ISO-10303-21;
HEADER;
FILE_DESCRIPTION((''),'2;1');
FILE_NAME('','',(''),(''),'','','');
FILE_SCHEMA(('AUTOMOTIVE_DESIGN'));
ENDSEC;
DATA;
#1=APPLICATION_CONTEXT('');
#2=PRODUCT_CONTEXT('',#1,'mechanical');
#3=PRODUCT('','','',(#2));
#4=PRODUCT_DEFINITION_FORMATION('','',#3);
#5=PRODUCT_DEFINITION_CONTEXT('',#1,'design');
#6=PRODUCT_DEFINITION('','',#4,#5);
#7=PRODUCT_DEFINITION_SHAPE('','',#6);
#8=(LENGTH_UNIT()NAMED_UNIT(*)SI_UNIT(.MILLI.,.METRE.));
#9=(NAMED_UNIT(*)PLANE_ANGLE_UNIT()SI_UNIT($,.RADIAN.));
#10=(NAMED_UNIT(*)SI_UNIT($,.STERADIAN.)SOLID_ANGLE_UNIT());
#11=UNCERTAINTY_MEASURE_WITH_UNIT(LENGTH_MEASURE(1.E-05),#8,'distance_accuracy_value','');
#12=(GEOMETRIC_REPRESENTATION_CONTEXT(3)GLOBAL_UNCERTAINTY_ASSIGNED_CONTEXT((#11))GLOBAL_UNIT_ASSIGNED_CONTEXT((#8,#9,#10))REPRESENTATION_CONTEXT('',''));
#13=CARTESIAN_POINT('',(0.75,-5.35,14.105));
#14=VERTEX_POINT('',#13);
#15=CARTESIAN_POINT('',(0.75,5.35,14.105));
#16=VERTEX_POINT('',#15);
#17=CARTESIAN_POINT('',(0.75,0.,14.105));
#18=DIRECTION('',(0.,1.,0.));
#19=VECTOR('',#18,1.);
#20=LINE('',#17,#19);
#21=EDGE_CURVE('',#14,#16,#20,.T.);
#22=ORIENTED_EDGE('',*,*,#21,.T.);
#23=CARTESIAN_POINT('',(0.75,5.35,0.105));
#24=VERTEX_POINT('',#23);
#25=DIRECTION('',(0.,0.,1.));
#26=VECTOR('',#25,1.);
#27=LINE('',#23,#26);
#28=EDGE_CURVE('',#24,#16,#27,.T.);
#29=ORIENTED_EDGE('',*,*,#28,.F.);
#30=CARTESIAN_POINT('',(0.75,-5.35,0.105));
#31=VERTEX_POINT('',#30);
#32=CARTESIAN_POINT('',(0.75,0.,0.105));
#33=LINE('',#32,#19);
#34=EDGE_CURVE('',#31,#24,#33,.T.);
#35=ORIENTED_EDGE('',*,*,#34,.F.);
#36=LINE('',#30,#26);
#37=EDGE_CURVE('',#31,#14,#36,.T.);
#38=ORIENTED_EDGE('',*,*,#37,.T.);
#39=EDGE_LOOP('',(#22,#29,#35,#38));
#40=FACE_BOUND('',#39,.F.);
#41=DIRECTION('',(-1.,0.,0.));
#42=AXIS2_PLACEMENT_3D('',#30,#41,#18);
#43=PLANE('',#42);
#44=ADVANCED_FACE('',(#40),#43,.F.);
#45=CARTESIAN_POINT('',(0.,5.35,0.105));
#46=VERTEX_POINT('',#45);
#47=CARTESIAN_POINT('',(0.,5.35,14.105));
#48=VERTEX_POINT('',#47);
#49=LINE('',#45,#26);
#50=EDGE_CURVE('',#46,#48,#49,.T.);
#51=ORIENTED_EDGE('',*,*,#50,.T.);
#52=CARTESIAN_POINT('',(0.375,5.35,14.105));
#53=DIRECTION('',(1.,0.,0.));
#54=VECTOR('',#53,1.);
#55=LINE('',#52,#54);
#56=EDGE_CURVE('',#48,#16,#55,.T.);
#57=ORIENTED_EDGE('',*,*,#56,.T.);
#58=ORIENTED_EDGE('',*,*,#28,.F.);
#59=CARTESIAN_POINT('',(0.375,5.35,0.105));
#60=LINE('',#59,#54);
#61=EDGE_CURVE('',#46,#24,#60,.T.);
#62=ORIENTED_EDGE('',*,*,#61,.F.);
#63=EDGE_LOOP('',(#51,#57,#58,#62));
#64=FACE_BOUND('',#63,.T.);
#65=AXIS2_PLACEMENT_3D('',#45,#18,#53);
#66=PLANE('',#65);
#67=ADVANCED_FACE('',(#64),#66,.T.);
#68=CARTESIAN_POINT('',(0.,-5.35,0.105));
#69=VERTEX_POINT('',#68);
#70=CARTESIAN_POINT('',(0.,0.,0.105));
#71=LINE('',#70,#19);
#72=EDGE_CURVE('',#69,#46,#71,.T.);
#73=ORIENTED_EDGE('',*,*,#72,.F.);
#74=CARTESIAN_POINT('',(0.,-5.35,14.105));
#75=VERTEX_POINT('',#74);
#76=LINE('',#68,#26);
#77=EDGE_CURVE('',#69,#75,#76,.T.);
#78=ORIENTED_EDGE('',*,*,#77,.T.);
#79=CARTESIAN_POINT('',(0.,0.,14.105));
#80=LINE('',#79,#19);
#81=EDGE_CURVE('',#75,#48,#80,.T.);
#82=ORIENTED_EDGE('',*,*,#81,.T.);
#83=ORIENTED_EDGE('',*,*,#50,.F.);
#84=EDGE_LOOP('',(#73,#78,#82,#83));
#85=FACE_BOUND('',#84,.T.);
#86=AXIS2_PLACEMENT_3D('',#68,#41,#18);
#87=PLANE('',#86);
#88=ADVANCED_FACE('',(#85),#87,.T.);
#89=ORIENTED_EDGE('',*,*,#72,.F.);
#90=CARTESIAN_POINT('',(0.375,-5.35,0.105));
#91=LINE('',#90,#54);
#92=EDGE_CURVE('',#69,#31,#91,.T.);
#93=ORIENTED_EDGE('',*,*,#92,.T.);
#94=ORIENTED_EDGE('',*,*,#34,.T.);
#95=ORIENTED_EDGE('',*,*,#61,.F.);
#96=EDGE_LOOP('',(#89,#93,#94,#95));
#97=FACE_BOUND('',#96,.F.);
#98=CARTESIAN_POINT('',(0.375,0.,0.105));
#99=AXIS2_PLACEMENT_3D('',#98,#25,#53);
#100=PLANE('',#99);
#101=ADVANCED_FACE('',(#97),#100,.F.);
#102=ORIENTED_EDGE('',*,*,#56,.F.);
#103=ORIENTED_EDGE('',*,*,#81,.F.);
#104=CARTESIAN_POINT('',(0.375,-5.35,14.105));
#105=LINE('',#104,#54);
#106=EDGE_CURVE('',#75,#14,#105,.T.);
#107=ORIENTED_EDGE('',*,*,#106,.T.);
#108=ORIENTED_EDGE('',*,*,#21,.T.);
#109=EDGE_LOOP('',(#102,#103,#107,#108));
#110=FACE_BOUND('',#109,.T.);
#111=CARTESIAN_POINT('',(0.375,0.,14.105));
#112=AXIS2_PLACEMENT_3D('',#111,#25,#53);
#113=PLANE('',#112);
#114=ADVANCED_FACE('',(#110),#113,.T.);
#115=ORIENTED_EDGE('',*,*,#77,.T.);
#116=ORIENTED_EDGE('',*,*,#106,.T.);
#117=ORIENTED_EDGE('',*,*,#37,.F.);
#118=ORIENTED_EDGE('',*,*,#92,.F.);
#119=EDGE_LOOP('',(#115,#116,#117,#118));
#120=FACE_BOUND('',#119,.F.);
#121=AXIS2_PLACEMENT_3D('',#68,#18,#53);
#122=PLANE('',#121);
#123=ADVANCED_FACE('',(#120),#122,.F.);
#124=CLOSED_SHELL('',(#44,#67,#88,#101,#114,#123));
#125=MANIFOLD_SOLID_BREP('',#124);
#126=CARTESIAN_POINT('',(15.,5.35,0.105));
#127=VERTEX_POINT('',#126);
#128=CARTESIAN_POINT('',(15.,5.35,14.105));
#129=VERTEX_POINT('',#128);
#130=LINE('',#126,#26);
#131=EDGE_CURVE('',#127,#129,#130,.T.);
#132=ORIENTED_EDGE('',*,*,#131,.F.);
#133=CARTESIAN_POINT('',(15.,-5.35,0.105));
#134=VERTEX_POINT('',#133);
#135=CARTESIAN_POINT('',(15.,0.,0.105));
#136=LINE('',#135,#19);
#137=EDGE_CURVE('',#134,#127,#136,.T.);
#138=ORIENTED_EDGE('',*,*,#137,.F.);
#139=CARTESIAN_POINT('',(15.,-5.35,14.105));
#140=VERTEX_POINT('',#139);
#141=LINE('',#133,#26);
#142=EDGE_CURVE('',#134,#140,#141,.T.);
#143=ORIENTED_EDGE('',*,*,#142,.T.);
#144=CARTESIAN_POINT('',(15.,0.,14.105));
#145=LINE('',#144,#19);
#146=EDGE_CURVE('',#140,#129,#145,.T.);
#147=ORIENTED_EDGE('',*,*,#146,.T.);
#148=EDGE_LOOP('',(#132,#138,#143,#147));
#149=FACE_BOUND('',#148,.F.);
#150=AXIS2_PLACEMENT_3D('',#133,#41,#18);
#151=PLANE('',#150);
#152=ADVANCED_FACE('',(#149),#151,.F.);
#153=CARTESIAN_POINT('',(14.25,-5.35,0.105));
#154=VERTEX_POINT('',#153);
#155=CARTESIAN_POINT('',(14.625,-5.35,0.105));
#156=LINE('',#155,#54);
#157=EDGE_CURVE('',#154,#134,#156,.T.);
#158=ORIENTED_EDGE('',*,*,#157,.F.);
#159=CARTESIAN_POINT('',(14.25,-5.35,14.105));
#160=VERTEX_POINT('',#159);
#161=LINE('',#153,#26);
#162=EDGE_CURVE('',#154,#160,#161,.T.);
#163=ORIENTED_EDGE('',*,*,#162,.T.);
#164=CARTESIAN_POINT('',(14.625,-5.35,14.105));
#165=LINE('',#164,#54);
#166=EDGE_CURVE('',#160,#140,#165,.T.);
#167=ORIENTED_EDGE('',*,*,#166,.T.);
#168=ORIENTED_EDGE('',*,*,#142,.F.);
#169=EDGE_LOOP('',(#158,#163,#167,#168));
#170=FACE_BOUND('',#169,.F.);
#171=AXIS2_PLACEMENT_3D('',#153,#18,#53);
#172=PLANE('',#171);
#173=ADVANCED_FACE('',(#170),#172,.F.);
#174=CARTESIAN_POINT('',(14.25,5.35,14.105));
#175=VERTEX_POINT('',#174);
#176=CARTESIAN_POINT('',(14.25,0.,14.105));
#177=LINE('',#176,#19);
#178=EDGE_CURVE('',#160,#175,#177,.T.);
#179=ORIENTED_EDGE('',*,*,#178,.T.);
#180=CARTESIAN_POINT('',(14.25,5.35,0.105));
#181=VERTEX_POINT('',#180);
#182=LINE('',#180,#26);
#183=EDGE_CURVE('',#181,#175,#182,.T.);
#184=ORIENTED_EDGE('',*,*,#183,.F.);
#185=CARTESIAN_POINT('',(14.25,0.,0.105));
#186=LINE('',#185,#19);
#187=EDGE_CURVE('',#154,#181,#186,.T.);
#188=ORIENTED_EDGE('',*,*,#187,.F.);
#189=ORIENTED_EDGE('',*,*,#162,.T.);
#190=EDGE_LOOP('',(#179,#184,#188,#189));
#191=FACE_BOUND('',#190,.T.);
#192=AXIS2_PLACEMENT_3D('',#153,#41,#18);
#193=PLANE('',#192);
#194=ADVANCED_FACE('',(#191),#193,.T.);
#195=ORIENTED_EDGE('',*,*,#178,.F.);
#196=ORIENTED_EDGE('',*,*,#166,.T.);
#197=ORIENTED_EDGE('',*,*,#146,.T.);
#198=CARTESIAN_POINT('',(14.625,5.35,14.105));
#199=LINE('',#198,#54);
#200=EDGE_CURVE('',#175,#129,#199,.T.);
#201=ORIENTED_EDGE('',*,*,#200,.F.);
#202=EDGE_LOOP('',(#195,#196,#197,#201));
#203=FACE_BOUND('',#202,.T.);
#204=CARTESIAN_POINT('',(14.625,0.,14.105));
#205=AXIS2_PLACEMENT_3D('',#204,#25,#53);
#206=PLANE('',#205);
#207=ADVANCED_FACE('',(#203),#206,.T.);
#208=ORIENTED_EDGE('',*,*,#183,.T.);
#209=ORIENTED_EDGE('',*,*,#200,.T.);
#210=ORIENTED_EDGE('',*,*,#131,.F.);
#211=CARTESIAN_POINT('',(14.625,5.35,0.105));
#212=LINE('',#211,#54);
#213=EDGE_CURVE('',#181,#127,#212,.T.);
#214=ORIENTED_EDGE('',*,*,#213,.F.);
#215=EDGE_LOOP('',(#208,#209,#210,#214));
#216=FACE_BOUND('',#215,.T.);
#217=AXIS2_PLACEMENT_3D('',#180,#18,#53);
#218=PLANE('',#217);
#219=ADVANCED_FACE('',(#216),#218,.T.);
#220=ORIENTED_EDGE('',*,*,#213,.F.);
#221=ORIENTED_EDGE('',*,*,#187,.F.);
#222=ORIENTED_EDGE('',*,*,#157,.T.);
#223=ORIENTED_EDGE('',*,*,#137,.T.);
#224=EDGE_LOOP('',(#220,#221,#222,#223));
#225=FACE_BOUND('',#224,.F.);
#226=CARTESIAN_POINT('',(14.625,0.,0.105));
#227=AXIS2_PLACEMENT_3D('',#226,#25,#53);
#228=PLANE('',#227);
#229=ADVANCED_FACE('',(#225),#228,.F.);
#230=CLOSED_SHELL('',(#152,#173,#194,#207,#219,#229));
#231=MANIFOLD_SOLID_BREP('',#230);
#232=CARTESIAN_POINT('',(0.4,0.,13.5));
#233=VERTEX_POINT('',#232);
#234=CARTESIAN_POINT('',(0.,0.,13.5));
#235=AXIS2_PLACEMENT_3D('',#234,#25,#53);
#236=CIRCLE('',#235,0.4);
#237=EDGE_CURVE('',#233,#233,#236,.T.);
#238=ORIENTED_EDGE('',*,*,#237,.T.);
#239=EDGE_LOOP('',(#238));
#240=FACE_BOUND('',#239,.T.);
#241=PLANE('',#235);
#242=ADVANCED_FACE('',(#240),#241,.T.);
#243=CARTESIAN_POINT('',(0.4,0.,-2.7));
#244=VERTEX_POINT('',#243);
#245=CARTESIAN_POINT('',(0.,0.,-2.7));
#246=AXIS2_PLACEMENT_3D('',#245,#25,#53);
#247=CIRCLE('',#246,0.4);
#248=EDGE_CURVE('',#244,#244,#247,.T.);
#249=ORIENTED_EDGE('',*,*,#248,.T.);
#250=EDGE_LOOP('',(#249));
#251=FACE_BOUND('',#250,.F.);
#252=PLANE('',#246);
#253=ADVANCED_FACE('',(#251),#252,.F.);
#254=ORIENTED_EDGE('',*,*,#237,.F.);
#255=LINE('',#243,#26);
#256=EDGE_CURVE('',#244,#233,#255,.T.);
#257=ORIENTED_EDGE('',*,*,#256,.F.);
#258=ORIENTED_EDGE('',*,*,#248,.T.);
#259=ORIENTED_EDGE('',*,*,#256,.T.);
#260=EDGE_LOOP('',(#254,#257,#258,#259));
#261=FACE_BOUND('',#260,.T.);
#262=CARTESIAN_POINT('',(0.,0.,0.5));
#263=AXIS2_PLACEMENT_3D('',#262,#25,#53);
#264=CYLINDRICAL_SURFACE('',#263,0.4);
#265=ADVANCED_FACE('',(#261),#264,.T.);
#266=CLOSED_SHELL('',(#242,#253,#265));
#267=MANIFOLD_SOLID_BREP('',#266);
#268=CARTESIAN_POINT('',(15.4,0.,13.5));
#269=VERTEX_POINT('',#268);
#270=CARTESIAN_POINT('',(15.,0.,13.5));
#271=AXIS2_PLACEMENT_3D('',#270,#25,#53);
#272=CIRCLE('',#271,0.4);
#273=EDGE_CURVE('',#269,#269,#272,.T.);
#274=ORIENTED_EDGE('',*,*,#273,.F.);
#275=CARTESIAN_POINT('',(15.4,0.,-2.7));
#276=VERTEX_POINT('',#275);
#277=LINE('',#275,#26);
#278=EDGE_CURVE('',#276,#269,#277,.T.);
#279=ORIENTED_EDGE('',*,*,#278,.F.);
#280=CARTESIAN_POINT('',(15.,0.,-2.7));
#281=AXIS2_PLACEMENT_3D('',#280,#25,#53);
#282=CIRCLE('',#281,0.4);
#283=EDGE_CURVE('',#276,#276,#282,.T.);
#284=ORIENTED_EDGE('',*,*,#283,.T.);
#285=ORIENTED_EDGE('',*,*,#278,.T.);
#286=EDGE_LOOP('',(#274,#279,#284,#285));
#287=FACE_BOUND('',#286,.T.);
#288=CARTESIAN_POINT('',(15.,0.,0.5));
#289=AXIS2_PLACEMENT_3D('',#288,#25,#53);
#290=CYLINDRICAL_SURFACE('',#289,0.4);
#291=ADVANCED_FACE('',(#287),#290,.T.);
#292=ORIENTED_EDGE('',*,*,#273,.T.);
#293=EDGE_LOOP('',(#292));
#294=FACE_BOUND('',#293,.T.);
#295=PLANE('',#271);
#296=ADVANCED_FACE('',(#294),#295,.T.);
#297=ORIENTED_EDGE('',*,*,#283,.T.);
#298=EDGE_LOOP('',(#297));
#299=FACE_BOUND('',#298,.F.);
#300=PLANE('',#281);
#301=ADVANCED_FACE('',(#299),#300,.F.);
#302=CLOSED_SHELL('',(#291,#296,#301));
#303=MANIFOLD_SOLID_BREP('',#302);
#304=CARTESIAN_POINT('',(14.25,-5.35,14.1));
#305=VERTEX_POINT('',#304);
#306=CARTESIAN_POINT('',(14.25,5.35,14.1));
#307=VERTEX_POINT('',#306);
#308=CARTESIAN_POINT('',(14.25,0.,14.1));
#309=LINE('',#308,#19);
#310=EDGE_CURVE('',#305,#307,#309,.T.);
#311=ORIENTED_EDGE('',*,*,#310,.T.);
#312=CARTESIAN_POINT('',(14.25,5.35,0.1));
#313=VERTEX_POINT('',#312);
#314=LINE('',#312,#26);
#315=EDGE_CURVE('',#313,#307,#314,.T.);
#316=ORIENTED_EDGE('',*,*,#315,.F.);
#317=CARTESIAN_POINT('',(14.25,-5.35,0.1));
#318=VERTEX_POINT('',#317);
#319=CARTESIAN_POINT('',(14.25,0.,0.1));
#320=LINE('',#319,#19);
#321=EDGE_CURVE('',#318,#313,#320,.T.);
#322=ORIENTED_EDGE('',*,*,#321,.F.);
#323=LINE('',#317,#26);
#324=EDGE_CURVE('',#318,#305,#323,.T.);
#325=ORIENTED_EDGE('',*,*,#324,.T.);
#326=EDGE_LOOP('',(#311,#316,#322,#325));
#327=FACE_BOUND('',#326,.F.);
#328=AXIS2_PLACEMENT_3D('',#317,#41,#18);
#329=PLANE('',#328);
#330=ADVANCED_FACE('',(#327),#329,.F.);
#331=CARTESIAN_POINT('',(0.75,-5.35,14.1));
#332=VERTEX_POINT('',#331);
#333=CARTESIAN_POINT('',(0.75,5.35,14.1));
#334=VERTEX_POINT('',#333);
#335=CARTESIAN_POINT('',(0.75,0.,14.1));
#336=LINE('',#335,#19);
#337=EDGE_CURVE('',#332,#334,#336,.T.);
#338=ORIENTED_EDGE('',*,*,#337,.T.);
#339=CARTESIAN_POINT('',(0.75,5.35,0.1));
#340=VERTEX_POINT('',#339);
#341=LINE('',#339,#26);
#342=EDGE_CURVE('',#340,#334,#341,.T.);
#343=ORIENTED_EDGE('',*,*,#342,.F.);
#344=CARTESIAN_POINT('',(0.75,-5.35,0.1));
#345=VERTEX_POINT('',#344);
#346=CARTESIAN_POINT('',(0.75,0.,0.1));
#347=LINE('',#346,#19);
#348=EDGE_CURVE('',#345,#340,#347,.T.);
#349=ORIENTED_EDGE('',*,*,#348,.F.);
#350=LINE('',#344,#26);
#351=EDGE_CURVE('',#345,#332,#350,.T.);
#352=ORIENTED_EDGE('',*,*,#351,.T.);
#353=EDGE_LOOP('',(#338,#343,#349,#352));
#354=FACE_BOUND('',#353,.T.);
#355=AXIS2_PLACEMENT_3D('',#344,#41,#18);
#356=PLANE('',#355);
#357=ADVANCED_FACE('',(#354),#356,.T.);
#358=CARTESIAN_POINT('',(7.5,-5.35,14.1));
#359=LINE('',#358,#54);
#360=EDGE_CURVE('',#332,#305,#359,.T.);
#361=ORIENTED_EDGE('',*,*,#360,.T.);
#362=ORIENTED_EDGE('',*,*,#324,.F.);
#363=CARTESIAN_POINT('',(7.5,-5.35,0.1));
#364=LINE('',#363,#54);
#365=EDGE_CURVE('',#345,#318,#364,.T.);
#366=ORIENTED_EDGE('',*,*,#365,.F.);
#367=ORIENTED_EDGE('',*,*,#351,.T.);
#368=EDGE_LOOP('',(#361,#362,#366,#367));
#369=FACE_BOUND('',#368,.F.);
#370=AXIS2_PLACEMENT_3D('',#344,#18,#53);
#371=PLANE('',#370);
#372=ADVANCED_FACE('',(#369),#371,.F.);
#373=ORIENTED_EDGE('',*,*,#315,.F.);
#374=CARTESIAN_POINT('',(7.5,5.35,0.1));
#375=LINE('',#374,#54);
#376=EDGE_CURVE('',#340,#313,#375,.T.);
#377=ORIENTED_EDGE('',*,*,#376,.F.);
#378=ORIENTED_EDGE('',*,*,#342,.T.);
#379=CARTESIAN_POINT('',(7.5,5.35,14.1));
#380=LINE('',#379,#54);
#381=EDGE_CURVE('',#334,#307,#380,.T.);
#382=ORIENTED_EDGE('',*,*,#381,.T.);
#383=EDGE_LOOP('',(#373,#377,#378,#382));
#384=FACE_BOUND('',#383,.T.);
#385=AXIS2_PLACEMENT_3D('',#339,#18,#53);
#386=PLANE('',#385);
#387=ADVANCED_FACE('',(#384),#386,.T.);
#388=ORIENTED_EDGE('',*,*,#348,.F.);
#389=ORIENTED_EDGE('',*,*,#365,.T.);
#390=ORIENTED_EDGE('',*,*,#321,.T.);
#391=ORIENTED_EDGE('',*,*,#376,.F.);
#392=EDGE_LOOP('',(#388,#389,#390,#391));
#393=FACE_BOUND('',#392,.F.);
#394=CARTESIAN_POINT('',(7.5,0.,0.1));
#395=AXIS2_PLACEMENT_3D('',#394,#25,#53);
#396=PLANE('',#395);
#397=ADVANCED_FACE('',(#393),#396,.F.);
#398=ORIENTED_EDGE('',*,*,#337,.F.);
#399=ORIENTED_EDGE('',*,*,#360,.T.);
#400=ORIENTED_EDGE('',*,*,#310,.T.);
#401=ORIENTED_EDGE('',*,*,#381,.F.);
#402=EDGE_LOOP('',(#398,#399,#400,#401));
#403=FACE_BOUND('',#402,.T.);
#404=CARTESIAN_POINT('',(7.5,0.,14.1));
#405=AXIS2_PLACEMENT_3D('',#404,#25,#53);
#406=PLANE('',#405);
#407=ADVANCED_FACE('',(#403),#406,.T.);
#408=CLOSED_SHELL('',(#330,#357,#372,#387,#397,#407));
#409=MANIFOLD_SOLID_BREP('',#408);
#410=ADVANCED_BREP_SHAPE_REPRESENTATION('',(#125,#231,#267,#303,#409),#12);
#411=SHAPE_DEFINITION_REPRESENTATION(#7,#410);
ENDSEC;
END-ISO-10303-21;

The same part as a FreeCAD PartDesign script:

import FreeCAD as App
import Part
import Sketcher

V = App.Vector
Q = App.Units.Quantity


def add_polygon(sketch, points):
    """Adds a closed chain of lines whose ends are joined by coincident constraints."""
    first, n = sketch.GeometryCount, len(points)
    for a, b in zip(points, points[1:] + points[:1]):
        sketch.addGeometry(Part.LineSegment(App.Vector(*a, 0), App.Vector(*b, 0)), False)
    for i in range(n):
        sketch.addConstraint(Sketcher.Constraint("Coincident", first + i, 2, first + (i + 1) % n, 1))

doc = App.newDocument("Part")
body = doc.addObject("PartDesign::Body", "Body")

sketch1 = body.newObject("Sketcher::SketchObject", "Sketch")
sketch1.AttachmentSupport = (doc.getObject("XY_Plane"), [""])
sketch1.MapMode = "FlatFace"
sketch1.AttachmentOffset = App.Placement(V(0, 0, 0.1), App.Rotation())
add_polygon(sketch1, [(0.75, 5.35), (0.75, -5.35), (14.25, -5.35), (14.25, 5.35)])
sketch1.addConstraint([
    Sketcher.Constraint("Vertical", 0),
    Sketcher.Constraint("Horizontal", 1),
    Sketcher.Constraint("Vertical", 2),
    Sketcher.Constraint("Horizontal", 3),
    Sketcher.Constraint("DistanceX", 1, 1, 1, 2, Q("13.5 mm")),
    Sketcher.Constraint("DistanceY", 0, 2, 0, 1, Q("10.7 mm")),
    Sketcher.Constraint("DistanceX", -1, 1, 0, 2, Q("0.75 mm")),
    Sketcher.Constraint("DistanceY", 0, 2, -1, 1, Q("5.35 mm")),
])
pad1 = body.newObject("PartDesign::Pad", "Pad")
pad1.Profile = sketch1
pad1.Length = 14
body2 = doc.addObject("PartDesign::Body", "Body001")
body2.AllowCompound = True

sketch2 = body2.newObject("Sketcher::SketchObject", "Sketch001")
sketch2.AttachmentSupport = (doc.getObject("XY_Plane001"), [""])
sketch2.MapMode = "FlatFace"
sketch2.AttachmentOffset = App.Placement(V(0, 0, 0.5), App.Rotation())
sketch2.addGeometry([
    Part.Circle(V(0, 0, 0), V(0, 0, 1), 0.4),
    Part.Circle(V(15, 0, 0), V(0, 0, 1), 0.4),
], False)
sketch2.addConstraint([
    Sketcher.Constraint("Coincident", 0, 3, -1, 1),
    Sketcher.Constraint("Equal", 0, 1),
    Sketcher.Constraint("PointOnObject", 1, 3, -1),
    Sketcher.Constraint("Diameter", 0, Q("0.8 mm")),
    Sketcher.Constraint("DistanceX", -1, 1, 1, 3, Q("15 mm")),
])
pad2 = body2.newObject("PartDesign::Pad", "Pad001")
pad2.Profile = sketch2
pad2.Type = "TwoLengths"
pad2.Length = 13
pad2.Length2 = 3.2
body3 = doc.addObject("PartDesign::Body", "Body002")
body3.AllowCompound = True

sketch3 = body3.newObject("Sketcher::SketchObject", "Sketch002")
sketch3.AttachmentSupport = (doc.getObject("XY_Plane002"), [""])
sketch3.MapMode = "FlatFace"
sketch3.AttachmentOffset = App.Placement(V(0, 0, 0.105), App.Rotation())
add_polygon(sketch3, [(0, 5.35), (0, -5.35), (0.75, -5.35), (0.75, 5.35)])
add_polygon(sketch3, [(14.25, 5.35), (14.25, -5.35), (15, -5.35), (15, 5.35)])
sketch3.addConstraint([
    Sketcher.Constraint("Vertical", 0),
    Sketcher.Constraint("Horizontal", 1),
    Sketcher.Constraint("Vertical", 2),
    Sketcher.Constraint("Horizontal", 3),
    Sketcher.Constraint("Vertical", 4),
    Sketcher.Constraint("Horizontal", 5),
    Sketcher.Constraint("Vertical", 6),
    Sketcher.Constraint("Horizontal", 7),
    Sketcher.Constraint("Symmetric", 0, 2, 3, 2, -1, 1),
    Sketcher.Constraint("Horizontal", 1, 2, 4, 2),
    Sketcher.Constraint("Horizontal", 3, 2, 6, 2),
    Sketcher.Constraint("Equal", 3, 5),
    Sketcher.Constraint("DistanceY", 0, 2, 0, 1, Q("10.7 mm")),
    Sketcher.Constraint("DistanceX", -1, 1, 5, 2, Q("15 mm")),
    Sketcher.Constraint("DistanceX", 1, 1, 1, 2, Q("0.75 mm")),
])
pad3 = body3.newObject("PartDesign::Pad", "Pad002")
pad3.Profile = sketch3
pad3.Length = 14

doc.recompute()
